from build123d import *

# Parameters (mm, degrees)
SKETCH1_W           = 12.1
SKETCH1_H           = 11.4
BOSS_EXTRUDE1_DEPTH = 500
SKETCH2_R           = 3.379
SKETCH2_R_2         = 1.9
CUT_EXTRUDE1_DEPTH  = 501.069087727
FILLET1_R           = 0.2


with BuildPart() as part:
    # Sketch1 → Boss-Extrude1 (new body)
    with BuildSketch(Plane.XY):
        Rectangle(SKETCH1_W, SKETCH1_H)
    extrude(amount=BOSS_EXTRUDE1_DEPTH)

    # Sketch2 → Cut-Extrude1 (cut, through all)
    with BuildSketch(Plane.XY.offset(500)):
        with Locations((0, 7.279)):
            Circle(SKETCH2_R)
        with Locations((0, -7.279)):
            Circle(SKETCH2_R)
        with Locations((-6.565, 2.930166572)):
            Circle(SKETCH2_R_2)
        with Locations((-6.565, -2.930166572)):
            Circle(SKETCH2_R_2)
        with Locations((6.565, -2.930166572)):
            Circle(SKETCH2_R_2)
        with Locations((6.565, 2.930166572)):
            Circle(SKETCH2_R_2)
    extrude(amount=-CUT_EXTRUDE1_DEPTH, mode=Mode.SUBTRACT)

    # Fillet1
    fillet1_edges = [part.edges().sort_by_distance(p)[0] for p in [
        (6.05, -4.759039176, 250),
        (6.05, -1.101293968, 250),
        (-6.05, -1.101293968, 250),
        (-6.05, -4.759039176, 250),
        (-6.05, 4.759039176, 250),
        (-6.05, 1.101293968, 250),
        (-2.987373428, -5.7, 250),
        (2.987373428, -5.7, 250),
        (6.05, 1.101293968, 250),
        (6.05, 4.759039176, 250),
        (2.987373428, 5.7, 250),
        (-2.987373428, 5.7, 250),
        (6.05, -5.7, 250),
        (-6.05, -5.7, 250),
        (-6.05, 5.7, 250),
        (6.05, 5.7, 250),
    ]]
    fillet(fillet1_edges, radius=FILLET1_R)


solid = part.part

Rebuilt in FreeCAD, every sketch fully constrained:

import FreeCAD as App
import Part
import Sketcher


def edges_at(feature, points):
    """Names of the edges that pass closest to the given points."""
    edges = feature.Shape.Edges
    near = lambda p: min(range(len(edges)), key=lambda i: edges[i].distToShape(Part.Vertex(*p))[0])
    return sorted({f"Edge{near(p) + 1}" for p in points})

doc = App.newDocument("Part")
body = doc.addObject("PartDesign::Body", "Body")

# Sketch on XY plane
sketch1 = doc.addObject("Sketcher::SketchObject", "Sketch")
body.addObject(sketch1)
sketch1.AttachmentSupport = (doc.XY_Plane, [""])
sketch1.MapMode = "FlatFace"
sketch1.addGeometry([
    Part.LineSegment(App.Vector(-6, 6, 0), App.Vector(-6, -6, 0)),
    Part.LineSegment(App.Vector(-6, -6, 0), App.Vector(6, -6, 0)),
    Part.LineSegment(App.Vector(6, -6, 0), App.Vector(6, 6, 0)),
    Part.LineSegment(App.Vector(6, 6, 0), App.Vector(-6, 6, 0)),
], False)
sketch1.addConstraint([
    Sketcher.Constraint("Coincident", 0, 2, 1, 1),
    Sketcher.Constraint("Coincident", 1, 2, 2, 1),
    Sketcher.Constraint("Coincident", 2, 2, 3, 1),
    Sketcher.Constraint("Coincident", 3, 2, 0, 1),
    Sketcher.Constraint("Vertical", 0),
    Sketcher.Constraint("Horizontal", 1),
    Sketcher.Constraint("Vertical", 2),
    Sketcher.Constraint("Horizontal", 3),
    Sketcher.Constraint("Symmetric", 0, 2, 2, 2, -1, 1),
    Sketcher.Constraint("DistanceX", 1, 1, 1, 2, 12.1),
    Sketcher.Constraint("DistanceY", 0, 2, 0, 1, 11.4),
])
pad1 = doc.addObject("PartDesign::Pad", "Pad")
body.addObject(pad1)
pad1.Profile = sketch1
pad1.Length = 500

# Sketch on XY plane
sketch2 = doc.addObject("Sketcher::SketchObject", "Sketch001")
body.addObject(sketch2)
sketch2.AttachmentSupport = (doc.XY_Plane, [""])
sketch2.MapMode = "FlatFace"
sketch2.AttachmentOffset = App.Placement(App.Vector(0, 0, 500), App.Rotation())
sketch2.addGeometry([
    Part.Circle(App.Vector(0, 7.3, 0), App.Vector(0, 0, 1), 3.4),  # 0
    Part.Circle(App.Vector(0, -7.3, 0), App.Vector(0, 0, 1), 3.4),  # 1
    Part.Circle(App.Vector(-6.6, 2.9, 0), App.Vector(0, 0, 1), 1.9),  # 2
    Part.Circle(App.Vector(-6.6, -2.9, 0), App.Vector(0, 0, 1), 1.9),  # 3
    Part.Circle(App.Vector(6.6, -2.9, 0), App.Vector(0, 0, 1), 1.9),  # 4
    Part.Circle(App.Vector(6.6, 2.9, 0), App.Vector(0, 0, 1), 1.9),  # 5
], False)
sketch2.addConstraint([
    Sketcher.Constraint("Equal", 0, 1),
    Sketcher.Constraint("Equal", 2, 3),
    Sketcher.Constraint("Equal", 3, 4),
    Sketcher.Constraint("Equal", 4, 5),
    Sketcher.Constraint("Symmetric", 0, 3, 1, 3, -1, 1),
    Sketcher.Constraint("Symmetric", 2, 3, 4, 3, -1, 1),
    Sketcher.Constraint("Symmetric", 3, 3, 5, 3, -1, 1),
    Sketcher.Constraint("Symmetric", 3, 3, 4, 3, -2),
    Sketcher.Constraint("PointOnObject", 0, 3, -2),
    Sketcher.Constraint("Diameter", 2, 3.8),
    Sketcher.Constraint("Diameter", 0, 6.758),
    Sketcher.Constraint("DistanceX", 3, 3, 4, 3, 13.13),
    Sketcher.Constraint("DistanceY", -1, 1, 0, 3, 7.279),
    Sketcher.Constraint("DistanceY", -1, 1, 2, 3, 2.930167),
])
pocket1 = doc.addObject("PartDesign::Pocket", "Pocket")
body.addObject(pocket1)
pocket1.Profile = sketch2
pocket1.Type = "ThroughAll"
doc.recompute()

fillet = doc.addObject("PartDesign::Fillet", "Fillet")
body.addObject(fillet)
fillet.Base = (pocket1, edges_at(pocket1, [
    (6.05, -4.759, 250),
    (6.05, -1.101, 250),
    (-6.05, -1.101, 250),
    (-6.05, -4.759, 250),
    (-6.05, 4.759, 250),
    (-6.05, 1.101, 250),
    (-2.987, -5.7, 250),
    (2.987, -5.7, 250),
    (6.05, 1.101, 250),
    (6.05, 4.759, 250),
    (2.987, 5.7, 250),
    (-2.987, 5.7, 250),
    (6.05, -5.7, 250),
    (-6.05, -5.7, 250),
    (-6.05, 5.7, 250),
    (6.05, 5.7, 250),
]))
fillet.Radius = 0.2

doc.recompute()
